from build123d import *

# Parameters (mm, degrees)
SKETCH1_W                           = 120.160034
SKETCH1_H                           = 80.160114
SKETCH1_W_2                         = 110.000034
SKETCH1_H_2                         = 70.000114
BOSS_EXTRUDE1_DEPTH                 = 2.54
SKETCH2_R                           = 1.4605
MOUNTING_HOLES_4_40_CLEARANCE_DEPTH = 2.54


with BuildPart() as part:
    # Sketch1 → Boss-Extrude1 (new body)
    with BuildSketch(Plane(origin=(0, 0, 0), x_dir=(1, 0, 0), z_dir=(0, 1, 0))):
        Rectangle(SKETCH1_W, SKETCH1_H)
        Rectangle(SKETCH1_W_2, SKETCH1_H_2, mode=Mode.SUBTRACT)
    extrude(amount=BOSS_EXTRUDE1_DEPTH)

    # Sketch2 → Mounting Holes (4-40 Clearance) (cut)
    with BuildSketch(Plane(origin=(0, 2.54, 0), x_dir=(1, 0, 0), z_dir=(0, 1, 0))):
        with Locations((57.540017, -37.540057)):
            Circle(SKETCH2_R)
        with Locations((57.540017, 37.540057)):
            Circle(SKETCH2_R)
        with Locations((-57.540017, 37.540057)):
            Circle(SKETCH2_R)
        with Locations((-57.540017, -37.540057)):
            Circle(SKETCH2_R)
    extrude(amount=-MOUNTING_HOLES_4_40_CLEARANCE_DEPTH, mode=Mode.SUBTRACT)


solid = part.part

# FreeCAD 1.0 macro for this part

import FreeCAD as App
import Part
import Sketcher
from FreeCAD import Vector
Q = App.Units.Quantity

doc = App.newDocument("Part")
body = doc.addObject("PartDesign::Body", "Body")

sketch1 = body.newObject("Sketcher::SketchObject", "Sketch")
sketch1.AttachmentSupport = (doc.getObject("XZ_Plane"), [""])
sketch1.MapMode = "FlatFace"
sketch1.addGeometry(Part.LineSegment(Vector(-60.080017, -40.080057, 0), Vector(-60.080017, 40.080057, 0)), False)
sketch1.addGeometry(Part.LineSegment(Vector(-60.080017, 40.080057, 0), Vector(60.080017, 40.080057, 0)), False)
sketch1.addGeometry(Part.LineSegment(Vector(60.080017, 40.080057, 0), Vector(60.080017, -40.080057, 0)), False)
sketch1.addGeometry(Part.LineSegment(Vector(60.080017, -40.080057, 0), Vector(-60.080017, -40.080057, 0)), False)
sketch1.addGeometry(Part.LineSegment(Vector(55.000017, 35.000057, 0), Vector(-55.000017, 35.000057, 0)), False)
sketch1.addGeometry(Part.LineSegment(Vector(-55.000017, 35.000057, 0), Vector(-55.000017, -35.000057, 0)), False)
sketch1.addGeometry(Part.LineSegment(Vector(-55.000017, -35.000057, 0), Vector(55.000017, -35.000057, 0)), False)
sketch1.addGeometry(Part.LineSegment(Vector(55.000017, -35.000057, 0), Vector(55.000017, 35.000057, 0)), False)
sketch1.addConstraint(Sketcher.Constraint("Coincident", 0, 2, 1, 1))
sketch1.addConstraint(Sketcher.Constraint("Coincident", 1, 2, 2, 1))
sketch1.addConstraint(Sketcher.Constraint("Coincident", 2, 2, 3, 1))
sketch1.addConstraint(Sketcher.Constraint("Coincident", 3, 2, 0, 1))
sketch1.addConstraint(Sketcher.Constraint("Coincident", 4, 2, 5, 1))
sketch1.addConstraint(Sketcher.Constraint("Coincident", 5, 2, 6, 1))
sketch1.addConstraint(Sketcher.Constraint("Coincident", 6, 2, 7, 1))
sketch1.addConstraint(Sketcher.Constraint("Coincident", 7, 2, 4, 1))
sketch1.addConstraint(Sketcher.Constraint("Vertical", 0))
sketch1.addConstraint(Sketcher.Constraint("Horizontal", 1))
sketch1.addConstraint(Sketcher.Constraint("Vertical", 2))
sketch1.addConstraint(Sketcher.Constraint("Horizontal", 3))
sketch1.addConstraint(Sketcher.Constraint("Horizontal", 4))
sketch1.addConstraint(Sketcher.Constraint("Vertical", 5))
sketch1.addConstraint(Sketcher.Constraint("Horizontal", 6))
sketch1.addConstraint(Sketcher.Constraint("Vertical", 7))
sketch1.addConstraint(Sketcher.Constraint("Symmetric", 0, 2, 2, 2, -1, 1))
sketch1.addConstraint(Sketcher.Constraint("Symmetric", 4, 2, 6, 2, -1, 1))
sketch1.addConstraint(Sketcher.Constraint("DistanceX", 0, 2, 4, 2, Q("0.2 in")))
sketch1.addConstraint(Sketcher.Constraint("DistanceY", 4, 2, 0, 2, Q("0.2 in")))
sketch1.addConstraint(Sketcher.Constraint("DistanceX", 1, 1, 1, 2, 120.160034))
sketch1.addConstraint(Sketcher.Constraint("DistanceY", 0, 1, 0, 2, 80.160114))
pad1 = body.newObject("PartDesign::Pad", "Pad")
pad1.Profile = sketch1
pad1.Length = Q("0.1 in")
pad1.Reversed = True

sketch2 = body.newObject("Sketcher::SketchObject", "Sketch001")
sketch2.AttachmentSupport = (doc.getObject("XZ_Plane"), [""])
sketch2.MapMode = "FlatFace"
sketch2.AttachmentOffset = App.Placement(Vector(0, 0, -0.1 * 25.4), App.Rotation())
sketch2.addGeometry(Part.Circle(Vector(57.540017, 37.540057, 0), Vector(0, 0, 1), 1.4605), False)
sketch2.addGeometry(Part.Circle(Vector(57.540017, -37.540057, 0), Vector(0, 0, 1), 1.4605), False)
sketch2.addGeometry(Part.Circle(Vector(-57.540017, -37.540057, 0), Vector(0, 0, 1), 1.4605), False)
sketch2.addGeometry(Part.Circle(Vector(-57.540017, 37.540057, 0), Vector(0, 0, 1), 1.4605), False)
sketch2.addConstraint(Sketcher.Constraint("Equal", 0, 1))
sketch2.addConstraint(Sketcher.Constraint("Equal", 1, 2))
sketch2.addConstraint(Sketcher.Constraint("Equal", 2, 3))
sketch2.addConstraint(Sketcher.Constraint("Symmetric", 0, 3, 2, 3, -1, 1))
sketch2.addConstraint(Sketcher.Constraint("Symmetric", 1, 3, 3, 3, -1, 1))
sketch2.addConstraint(Sketcher.Constraint("Symmetric", 1, 3, 2, 3, -2))
sketch2.addConstraint(Sketcher.Constraint("Diameter", 0, Q("0.115 in")))
sketch2.addConstraint(Sketcher.Constraint("DistanceX", -1, 1, 0, 3, 57.540017))
sketch2.addConstraint(Sketcher.Constraint("DistanceY", -1, 1, 0, 3, 37.540057))
pocket1 = body.newObject("PartDesign::Pocket", "Pocket")
pocket1.Profile = sketch2
pocket1.Length = Q("0.1 in")
pocket1.Reversed = True

doc.recompute()
